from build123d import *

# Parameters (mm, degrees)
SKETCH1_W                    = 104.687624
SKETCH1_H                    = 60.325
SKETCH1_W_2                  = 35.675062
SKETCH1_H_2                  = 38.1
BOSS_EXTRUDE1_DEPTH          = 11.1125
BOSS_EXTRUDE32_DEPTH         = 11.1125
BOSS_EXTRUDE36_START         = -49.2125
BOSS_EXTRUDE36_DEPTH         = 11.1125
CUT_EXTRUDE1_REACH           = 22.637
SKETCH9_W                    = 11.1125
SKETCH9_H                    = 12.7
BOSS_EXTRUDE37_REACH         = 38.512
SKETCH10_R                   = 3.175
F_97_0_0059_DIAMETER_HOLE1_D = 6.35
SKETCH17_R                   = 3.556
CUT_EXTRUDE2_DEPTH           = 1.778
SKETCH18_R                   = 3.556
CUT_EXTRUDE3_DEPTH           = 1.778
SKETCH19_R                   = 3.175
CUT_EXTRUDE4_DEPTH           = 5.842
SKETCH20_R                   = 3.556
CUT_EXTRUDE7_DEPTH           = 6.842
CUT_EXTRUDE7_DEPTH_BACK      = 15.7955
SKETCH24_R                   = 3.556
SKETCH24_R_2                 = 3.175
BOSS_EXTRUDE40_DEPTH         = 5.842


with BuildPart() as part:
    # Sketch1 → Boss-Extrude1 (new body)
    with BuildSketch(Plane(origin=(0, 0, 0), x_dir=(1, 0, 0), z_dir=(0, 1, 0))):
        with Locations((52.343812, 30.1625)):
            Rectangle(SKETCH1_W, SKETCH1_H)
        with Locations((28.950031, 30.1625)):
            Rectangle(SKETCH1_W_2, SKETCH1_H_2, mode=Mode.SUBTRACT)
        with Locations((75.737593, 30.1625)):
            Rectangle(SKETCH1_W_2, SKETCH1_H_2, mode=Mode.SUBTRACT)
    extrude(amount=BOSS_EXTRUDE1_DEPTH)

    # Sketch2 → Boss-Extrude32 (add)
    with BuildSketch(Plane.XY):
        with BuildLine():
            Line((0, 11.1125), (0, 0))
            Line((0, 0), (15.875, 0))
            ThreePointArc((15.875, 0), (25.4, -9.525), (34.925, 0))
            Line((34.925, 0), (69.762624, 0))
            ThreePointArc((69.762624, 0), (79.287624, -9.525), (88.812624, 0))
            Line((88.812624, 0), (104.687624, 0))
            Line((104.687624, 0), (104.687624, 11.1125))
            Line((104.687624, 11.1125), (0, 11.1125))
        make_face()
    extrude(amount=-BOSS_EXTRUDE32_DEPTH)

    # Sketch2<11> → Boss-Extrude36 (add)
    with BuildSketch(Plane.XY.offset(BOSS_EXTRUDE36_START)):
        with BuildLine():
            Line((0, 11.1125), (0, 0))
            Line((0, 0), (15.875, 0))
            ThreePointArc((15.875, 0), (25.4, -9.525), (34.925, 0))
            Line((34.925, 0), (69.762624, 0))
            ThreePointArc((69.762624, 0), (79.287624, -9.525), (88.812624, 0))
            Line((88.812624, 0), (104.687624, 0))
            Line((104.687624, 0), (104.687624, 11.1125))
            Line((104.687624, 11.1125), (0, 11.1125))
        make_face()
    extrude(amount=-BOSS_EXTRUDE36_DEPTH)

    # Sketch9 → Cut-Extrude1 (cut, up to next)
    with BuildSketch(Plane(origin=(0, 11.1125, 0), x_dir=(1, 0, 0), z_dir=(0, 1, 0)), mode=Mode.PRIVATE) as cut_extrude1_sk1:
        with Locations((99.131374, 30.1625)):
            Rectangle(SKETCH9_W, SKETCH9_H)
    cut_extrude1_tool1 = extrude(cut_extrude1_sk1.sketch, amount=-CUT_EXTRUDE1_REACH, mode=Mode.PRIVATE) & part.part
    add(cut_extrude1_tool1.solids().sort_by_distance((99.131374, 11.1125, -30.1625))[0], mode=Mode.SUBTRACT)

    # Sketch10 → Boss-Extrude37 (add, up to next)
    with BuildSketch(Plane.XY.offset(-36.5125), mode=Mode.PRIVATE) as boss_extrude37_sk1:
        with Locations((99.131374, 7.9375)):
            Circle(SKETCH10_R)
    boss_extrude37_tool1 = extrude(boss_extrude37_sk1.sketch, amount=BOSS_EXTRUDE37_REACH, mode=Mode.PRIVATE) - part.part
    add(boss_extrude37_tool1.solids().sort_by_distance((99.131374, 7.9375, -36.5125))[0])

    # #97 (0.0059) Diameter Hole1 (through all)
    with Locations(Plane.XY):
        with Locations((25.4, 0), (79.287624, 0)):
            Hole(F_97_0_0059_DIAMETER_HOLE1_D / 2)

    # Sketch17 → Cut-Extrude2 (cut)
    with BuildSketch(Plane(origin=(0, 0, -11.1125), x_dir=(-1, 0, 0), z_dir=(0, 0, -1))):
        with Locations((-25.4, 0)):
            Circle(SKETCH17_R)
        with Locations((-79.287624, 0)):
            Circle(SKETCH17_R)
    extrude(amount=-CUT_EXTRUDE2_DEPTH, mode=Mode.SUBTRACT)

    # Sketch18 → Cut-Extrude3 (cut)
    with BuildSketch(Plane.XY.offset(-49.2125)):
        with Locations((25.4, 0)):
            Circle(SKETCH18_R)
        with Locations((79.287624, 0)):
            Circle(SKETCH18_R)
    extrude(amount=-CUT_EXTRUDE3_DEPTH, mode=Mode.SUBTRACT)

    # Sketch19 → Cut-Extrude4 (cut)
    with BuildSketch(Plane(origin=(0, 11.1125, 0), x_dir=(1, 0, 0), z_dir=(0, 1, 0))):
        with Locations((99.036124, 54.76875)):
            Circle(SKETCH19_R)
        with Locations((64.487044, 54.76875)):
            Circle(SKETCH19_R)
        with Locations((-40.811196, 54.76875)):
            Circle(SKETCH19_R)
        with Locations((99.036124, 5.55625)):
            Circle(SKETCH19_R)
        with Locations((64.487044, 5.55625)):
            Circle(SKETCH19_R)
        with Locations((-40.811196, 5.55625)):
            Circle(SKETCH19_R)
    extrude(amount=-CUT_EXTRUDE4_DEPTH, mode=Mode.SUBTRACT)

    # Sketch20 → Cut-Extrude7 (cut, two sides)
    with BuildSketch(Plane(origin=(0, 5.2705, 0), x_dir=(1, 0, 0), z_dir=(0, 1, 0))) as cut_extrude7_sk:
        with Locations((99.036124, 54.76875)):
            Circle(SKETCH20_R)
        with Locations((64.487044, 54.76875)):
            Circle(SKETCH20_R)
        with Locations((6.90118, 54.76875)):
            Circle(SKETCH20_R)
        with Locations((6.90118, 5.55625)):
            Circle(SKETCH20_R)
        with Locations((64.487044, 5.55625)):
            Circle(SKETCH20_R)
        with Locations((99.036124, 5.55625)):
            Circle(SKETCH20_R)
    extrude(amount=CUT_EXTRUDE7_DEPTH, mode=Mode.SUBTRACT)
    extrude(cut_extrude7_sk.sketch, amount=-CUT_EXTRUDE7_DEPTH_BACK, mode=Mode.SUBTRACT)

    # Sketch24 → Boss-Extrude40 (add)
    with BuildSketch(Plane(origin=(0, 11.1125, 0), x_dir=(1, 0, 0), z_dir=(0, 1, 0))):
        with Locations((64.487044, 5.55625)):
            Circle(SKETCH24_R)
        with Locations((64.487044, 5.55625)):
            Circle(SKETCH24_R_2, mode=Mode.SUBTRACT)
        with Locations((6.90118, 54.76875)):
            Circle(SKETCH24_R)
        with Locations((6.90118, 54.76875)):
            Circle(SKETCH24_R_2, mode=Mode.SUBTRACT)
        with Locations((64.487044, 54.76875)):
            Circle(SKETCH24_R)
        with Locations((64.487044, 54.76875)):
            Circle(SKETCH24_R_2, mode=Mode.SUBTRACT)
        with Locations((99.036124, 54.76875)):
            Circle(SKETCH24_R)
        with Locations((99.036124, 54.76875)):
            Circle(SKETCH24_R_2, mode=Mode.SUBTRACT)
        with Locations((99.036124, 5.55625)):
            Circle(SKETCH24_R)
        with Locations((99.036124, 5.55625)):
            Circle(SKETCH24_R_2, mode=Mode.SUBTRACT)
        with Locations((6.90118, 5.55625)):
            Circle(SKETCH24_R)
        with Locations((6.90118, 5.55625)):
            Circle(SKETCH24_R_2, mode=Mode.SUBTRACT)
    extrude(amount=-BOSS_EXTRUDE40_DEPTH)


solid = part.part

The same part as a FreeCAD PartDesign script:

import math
import FreeCAD as App
import Part
import Sketcher

V = App.Vector
Q = App.Units.Quantity


def add_polygon(sketch, points):
    """Adds a closed chain of lines whose ends are joined by coincident constraints."""
    first, n = sketch.GeometryCount, len(points)
    for a, b in zip(points, points[1:] + points[:1]):
        sketch.addGeometry(Part.LineSegment(App.Vector(*a, 0), App.Vector(*b, 0)), False)
    for i in range(n):
        sketch.addConstraint(Sketcher.Constraint("Coincident", first + i, 2, first + (i + 1) % n, 1))

doc = App.newDocument("Part")
body = doc.addObject("PartDesign::Body", "Body")

# Sketch on XZ plane
sketch1 = doc.addObject("Sketcher::SketchObject", "Sketch")
body.addObject(sketch1)
sketch1.AttachmentSupport = (doc.XZ_Plane, [""])
sketch1.MapMode = "FlatFace"
add_polygon(sketch1, [(0, -60), (0, 0), (105, 0), (105, -60)])  # lines 0-3
add_polygon(sketch1, [(47, -11), (11, -11), (11, -49), (47, -49)])  # lines 4-7
add_polygon(sketch1, [(94, -11), (58, -11), (58, -49), (94, -49)])  # lines 8-11
sketch1.addConstraint([
    Sketcher.Constraint("Vertical", 0),
    Sketcher.Constraint("Horizontal", 1),
    Sketcher.Constraint("Vertical", 2),
    Sketcher.Constraint("Horizontal", 3),
    Sketcher.Constraint("Horizontal", 4),
    Sketcher.Constraint("Vertical", 5),
    Sketcher.Constraint("Horizontal", 6),
    Sketcher.Constraint("Vertical", 7),
    Sketcher.Constraint("Horizontal", 8),
    Sketcher.Constraint("Vertical", 9),
    Sketcher.Constraint("Horizontal", 10),
    Sketcher.Constraint("Vertical", 11),
    Sketcher.Constraint("Coincident", 0, 2, -1, 1),
    Sketcher.Constraint("Horizontal", 7, 2, 8, 2),
    Sketcher.Constraint("Horizontal", 6, 2, 9, 2),
    Sketcher.Constraint("Equal", 6, 8),
    Sketcher.Constraint("DistanceY", 5, 2, 5, 1, Q("1.5 in")),
    Sketcher.Constraint("DistanceY", 0, 1, 0, 2, Q("2.375 in")),
    Sketcher.Constraint("DistanceX", -1, 1, 4, 2, Q("0.4375 in")),
    Sketcher.Constraint("DistanceY", 4, 2, -1, 1, Q("0.4375 in")),
    Sketcher.Constraint("DistanceX", 7, 2, 8, 2, Q("0.4375 in")),
    Sketcher.Constraint("DistanceX", 10, 2, 2, 2, Q("0.4375 in")),
    Sketcher.Constraint("DistanceX", 4, 2, 4, 1, 35.675062),
])
pad1 = doc.addObject("PartDesign::Pad", "Pad")
body.addObject(pad1)
pad1.Profile = sketch1
pad1.Length = Q("0.4375 in")
pad1.Reversed = True

# Sketch on XY plane
sketch2 = doc.addObject("Sketcher::SketchObject", "Sketch001")
body.addObject(sketch2)
sketch2.AttachmentSupport = (doc.XY_Plane, [""])
sketch2.MapMode = "FlatFace"
sketch2.addGeometry([
    Part.LineSegment(V(0, 11, 0), V(0, 0, 0)),  # 0
    Part.LineSegment(V(0, 0, 0), V(16, 0, 0)),  # 1
    Part.ArcOfCircle(Part.Circle(V(25, 0, 0), V(0, 0, 1), 10), math.radians(180), math.radians(360)),  # 2
    Part.LineSegment(V(35, 0, 0), V(70, 0, 0)),  # 3
    Part.ArcOfCircle(Part.Circle(V(79, 0, 0), V(0, 0, 1), 10), math.radians(180), math.radians(360)),  # 4
    Part.LineSegment(V(89, 0, 0), V(105, 0, 0)),  # 5
    Part.LineSegment(V(105, 0, 0), V(105, 11, 0)),  # 6
    Part.LineSegment(V(105, 11, 0), V(0, 11, 0)),  # 7
], False)
sketch2.addConstraint([
    Sketcher.Constraint("Coincident", 0, 2, 1, 1),
    Sketcher.Constraint("Coincident", 1, 2, 2, 1),
    Sketcher.Constraint("Coincident", 2, 2, 3, 1),
    Sketcher.Constraint("Coincident", 3, 2, 4, 1),
    Sketcher.Constraint("Coincident", 4, 2, 5, 1),
    Sketcher.Constraint("Coincident", 5, 2, 6, 1),
    Sketcher.Constraint("Coincident", 6, 2, 7, 1),
    Sketcher.Constraint("Coincident", 7, 2, 0, 1),
    Sketcher.Constraint("Vertical", 0),
    Sketcher.Constraint("Horizontal", 1),
    Sketcher.Constraint("Horizontal", 3),
    Sketcher.Constraint("Horizontal", 5),
    Sketcher.Constraint("Vertical", 6),
    Sketcher.Constraint("Horizontal", 7),
    Sketcher.Constraint("Coincident", 0, 2, -1, 1),
    Sketcher.Constraint("Equal", 2, 4),
    Sketcher.Constraint("PointOnObject", 2, 3, -1),
    Sketcher.Constraint("PointOnObject", 4, 3, -1),
    Sketcher.Constraint("PointOnObject", 2, 2, -1),
    Sketcher.Constraint("PointOnObject", 4, 2, -1),
    Sketcher.Constraint("Equal", 1, 5),
    Sketcher.Constraint("DistanceX", -1, 1, 2, 3, Q("1 in")),
    Sketcher.Constraint("Radius", 2, Q("0.375 in")),
    Sketcher.Constraint("DistanceY", 0, 2, 0, 1, Q("0.4375 in")),
    Sketcher.Constraint("DistanceX", 3, 1, 3, 2, 34.837624),
])
pad2 = doc.addObject("PartDesign::Pad", "Pad001")
body.addObject(pad2)
pad2.Profile = sketch2
pad2.Length = Q("0.4375 in")
pad2.Reversed = True

# Sketch on XY plane
sketch3 = doc.addObject("Sketcher::SketchObject", "Sketch002")
body.addObject(sketch3)
sketch3.AttachmentSupport = (doc.XY_Plane, [""])
sketch3.MapMode = "FlatFace"
sketch3.AttachmentOffset = App.Placement(V(0, 0, -1.9375 * 25.4), App.Rotation())
sketch3.addGeometry([
    Part.LineSegment(V(0, 11, 0), V(0, 0, 0)),  # 0
    Part.LineSegment(V(0, 0, 0), V(16, 0, 0)),  # 1
    Part.ArcOfCircle(Part.Circle(V(25, 0, 0), V(0, 0, 1), 10), math.radians(180), math.radians(360)),  # 2
    Part.LineSegment(V(35, 0, 0), V(70, 0, 0)),  # 3
    Part.ArcOfCircle(Part.Circle(V(79, 0, 0), V(0, 0, 1), 10), math.radians(180), math.radians(360)),  # 4
    Part.LineSegment(V(89, 0, 0), V(105, 0, 0)),  # 5
    Part.LineSegment(V(105, 0, 0), V(105, 11, 0)),  # 6
    Part.LineSegment(V(105, 11, 0), V(0, 11, 0)),  # 7
], False)
sketch3.addConstraint([
    Sketcher.Constraint("Coincident", 0, 2, 1, 1),
    Sketcher.Constraint("Coincident", 1, 2, 2, 1),
    Sketcher.Constraint("Coincident", 2, 2, 3, 1),
    Sketcher.Constraint("Coincident", 3, 2, 4, 1),
    Sketcher.Constraint("Coincident", 4, 2, 5, 1),
    Sketcher.Constraint("Coincident", 5, 2, 6, 1),
    Sketcher.Constraint("Coincident", 6, 2, 7, 1),
    Sketcher.Constraint("Coincident", 7, 2, 0, 1),
    Sketcher.Constraint("Vertical", 0),
    Sketcher.Constraint("Horizontal", 1),
    Sketcher.Constraint("Horizontal", 3),
    Sketcher.Constraint("Horizontal", 5),
    Sketcher.Constraint("Vertical", 6),
    Sketcher.Constraint("Horizontal", 7),
    Sketcher.Constraint("Coincident", 0, 2, -1, 1),
    Sketcher.Constraint("Equal", 2, 4),
    Sketcher.Constraint("PointOnObject", 2, 3, -1),
    Sketcher.Constraint("PointOnObject", 4, 3, -1),
    Sketcher.Constraint("PointOnObject", 2, 2, -1),
    Sketcher.Constraint("PointOnObject", 4, 2, -1),
    Sketcher.Constraint("Equal", 1, 5),
    Sketcher.Constraint("DistanceX", -1, 1, 2, 3, Q("1 in")),
    Sketcher.Constraint("Radius", 2, Q("0.375 in")),
    Sketcher.Constraint("DistanceY", 0, 2, 0, 1, Q("0.4375 in")),
    Sketcher.Constraint("DistanceX", 3, 1, 3, 2, 34.837624),
])
pad3 = doc.addObject("PartDesign::Pad", "Pad002")
body.addObject(pad3)
pad3.Profile = sketch3
pad3.Length = Q("0.4375 in")
pad3.Reversed = True

# Sketch on XZ plane
sketch4 = doc.addObject("Sketcher::SketchObject", "Sketch003")
body.addObject(sketch4)
sketch4.AttachmentSupport = (doc.XZ_Plane, [""])
sketch4.MapMode = "FlatFace"
sketch4.AttachmentOffset = App.Placement(V(0, 0, -0.4375 * 25.4), App.Rotation())
add_polygon(sketch4, [(94, -37), (94, -24), (105, -24), (105, -37)])  # lines 0-3
sketch4.addConstraint([
    Sketcher.Constraint("Vertical", 0),
    Sketcher.Constraint("Horizontal", 1),
    Sketcher.Constraint("Vertical", 2),
    Sketcher.Constraint("Horizontal", 3),
    Sketcher.Constraint("DistanceY", 0, 1, 0, 2, Q("0.5 in")),
    Sketcher.Constraint("DistanceX", 1, 1, 1, 2, Q("0.4375 in")),
    Sketcher.Constraint("DistanceY", 0, 2, -1, 1, Q("0.9375 in")),
    Sketcher.Constraint("DistanceX", -1, 1, 0, 2, 93.575124),
])
pocket1 = doc.addObject("PartDesign::Pocket", "Pocket")
body.addObject(pocket1)
pocket1.Profile = sketch4
pocket1.Type = "UpToFirst"
pocket1.Reversed = True

# Sketch on XY plane
sketch5 = doc.addObject("Sketcher::SketchObject", "Sketch004")
body.addObject(sketch5)
sketch5.AttachmentSupport = (doc.XY_Plane, [""])
sketch5.MapMode = "FlatFace"
sketch5.AttachmentOffset = App.Placement(V(0, 0, -1.4375 * 25.4), App.Rotation())
sketch5.addGeometry(Part.Circle(V(99.1, 7.9, 0), V(0, 0, 1), 3.2), False)
sketch5.addConstraint([
    Sketcher.Constraint("Diameter", 0, Q("0.25 in")),
    Sketcher.Constraint("DistanceY", -1, 1, 0, 3, Q("0.3125 in")),
    Sketcher.Constraint("DistanceX", -1, 1, 0, 3, 99.131374),
])
pad4 = doc.addObject("PartDesign::Pad", "Pad003")
body.addObject(pad4)
pad4.Profile = sketch5
pad4.Type = "UpToFirst"

# Sketch on XY plane
sketch6 = doc.addObject("Sketcher::SketchObject", "Sketch005")
body.addObject(sketch6)
sketch6.AttachmentSupport = (doc.XY_Plane, [""])
sketch6.MapMode = "FlatFace"
sketch6.addGeometry([
    Part.Circle(V(25.4, 0, 0), V(0, 0, 1), 3.2),
    Part.Circle(V(79.3, 0, 0), V(0, 0, 1), 3.2),
], False)
sketch6.addConstraint([
    Sketcher.Constraint("Equal", 0, 1),
    Sketcher.Constraint("PointOnObject", 0, 3, -1),
    Sketcher.Constraint("PointOnObject", 1, 3, -1),
    Sketcher.Constraint("Diameter", 0, Q("0.25 in")),
    Sketcher.Constraint("DistanceX", -1, 1, 0, 3, Q("1 in")),
    Sketcher.Constraint("DistanceX", -1, 1, 1, 3, 79.287624),
])
doc.recompute()
hole = doc.addObject("PartDesign::Hole", "Hole")
body.addObject(hole)
hole.Profile = sketch6
hole.ThreadType = "None"
hole.Diameter = Q("0.25 in")
hole.DepthType = "ThroughAll"

# Sketch on XY plane
sketch7 = doc.addObject("Sketcher::SketchObject", "Sketch006")
body.addObject(sketch7)
sketch7.AttachmentSupport = (doc.XY_Plane, [""])
sketch7.MapMode = "FlatFace"
sketch7.AttachmentOffset = App.Placement(V(0, 0, -0.4375 * 25.4), App.Rotation())
sketch7.addGeometry([
    Part.Circle(V(25.4, 0, 0), V(0, 0, 1), 3.6),
    Part.Circle(V(79.3, 0, 0), V(0, 0, 1), 3.6),
], False)
sketch7.addConstraint([
    Sketcher.Constraint("Equal", 0, 1),
    Sketcher.Constraint("PointOnObject", 0, 3, -1),
    Sketcher.Constraint("PointOnObject", 1, 3, -1),
    Sketcher.Constraint("Diameter", 0, Q("0.28 in")),
    Sketcher.Constraint("DistanceX", -1, 1, 0, 3, Q("1 in")),
    Sketcher.Constraint("DistanceX", -1, 1, 1, 3, 79.287624),
])
pocket2 = doc.addObject("PartDesign::Pocket", "Pocket001")
body.addObject(pocket2)
pocket2.Profile = sketch7
pocket2.Length = Q("0.07 in")
pocket2.Reversed = True

# Sketch on XY plane
sketch8 = doc.addObject("Sketcher::SketchObject", "Sketch007")
body.addObject(sketch8)
sketch8.AttachmentSupport = (doc.XY_Plane, [""])
sketch8.MapMode = "FlatFace"
sketch8.AttachmentOffset = App.Placement(V(0, 0, -1.9375 * 25.4), App.Rotation())
sketch8.addGeometry([
    Part.Circle(V(25.4, 0, 0), V(0, 0, 1), 3.6),
    Part.Circle(V(79.3, 0, 0), V(0, 0, 1), 3.6),
], False)
sketch8.addConstraint([
    Sketcher.Constraint("Equal", 0, 1),
    Sketcher.Constraint("PointOnObject", 0, 3, -1),
    Sketcher.Constraint("PointOnObject", 1, 3, -1),
    Sketcher.Constraint("Diameter", 0, Q("0.28 in")),
    Sketcher.Constraint("DistanceX", -1, 1, 0, 3, Q("1 in")),
    Sketcher.Constraint("DistanceX", -1, 1, 1, 3, 79.287624),
])
pocket3 = doc.addObject("PartDesign::Pocket", "Pocket002")
body.addObject(pocket3)
pocket3.Profile = sketch8
pocket3.Length = Q("0.07 in")

# Sketch on XZ plane
sketch9 = doc.addObject("Sketcher::SketchObject", "Sketch008")
body.addObject(sketch9)
sketch9.AttachmentSupport = (doc.XZ_Plane, [""])
sketch9.MapMode = "FlatFace"
sketch9.AttachmentOffset = App.Placement(V(0, 0, -0.4375 * 25.4), App.Rotation())
sketch9.addGeometry([
    Part.Circle(V(99, -54.8, 0), V(0, 0, 1), 3.2),  # 0
    Part.Circle(V(64.5, -54.8, 0), V(0, 0, 1), 3.2),  # 1
    Part.Circle(V(-40.8, -54.8, 0), V(0, 0, 1), 3.2),  # 2
    Part.Circle(V(99, -5.6, 0), V(0, 0, 1), 3.2),  # 3
    Part.Circle(V(64.5, -5.6, 0), V(0, 0, 1), 3.2),  # 4
    Part.Circle(V(-40.8, -5.6, 0), V(0, 0, 1), 3.2),  # 5
], False)
sketch9.addConstraint([
    Sketcher.Constraint("Equal", 0, 1),
    Sketcher.Constraint("Equal", 1, 2),
    Sketcher.Constraint("Equal", 2, 3),
    Sketcher.Constraint("Equal", 3, 4),
    Sketcher.Constraint("Equal", 4, 5),
    Sketcher.Constraint("Horizontal", 0, 3, 1, 3),
    Sketcher.Constraint("Horizontal", 1, 3, 2, 3),
    Sketcher.Constraint("Horizontal", 3, 3, 4, 3),
    Sketcher.Constraint("Horizontal", 4, 3, 5, 3),
    Sketcher.Constraint("Vertical", 0, 3, 3, 3),
    Sketcher.Constraint("Vertical", 1, 3, 4, 3),
    Sketcher.Constraint("Vertical", 2, 3, 5, 3),
    Sketcher.Constraint("Diameter", 0, Q("0.25 in")),
    Sketcher.Constraint("DistanceY", 0, 3, -1, 1, Q("2.15625 in")),
    Sketcher.Constraint("DistanceY", 3, 3, -1, 1, Q("0.21875 in")),
    Sketcher.Constraint("DistanceX", 1, 3, 0, 3, Q("1.3602 in")),
    Sketcher.Constraint("DistanceX", 2, 3, 1, 3, Q("4.1456 in")),
    Sketcher.Constraint("DistanceX", -1, 1, 0, 3, 99.036124),
])
pocket4 = doc.addObject("PartDesign::Pocket", "Pocket003")
body.addObject(pocket4)
pocket4.Profile = sketch9
pocket4.Length = Q("0.23 in")
pocket4.Reversed = True

# Sketch on XZ plane
sketch10 = doc.addObject("Sketcher::SketchObject", "Sketch009")
body.addObject(sketch10)
sketch10.AttachmentSupport = (doc.XZ_Plane, [""])
sketch10.MapMode = "FlatFace"
sketch10.AttachmentOffset = App.Placement(V(0, 0, -0.2075 * 25.4), App.Rotation())
sketch10.addGeometry([
    Part.Circle(V(99, -54.8, 0), V(0, 0, 1), 3.6),  # 0
    Part.Circle(V(64.5, -54.8, 0), V(0, 0, 1), 3.6),  # 1
    Part.Circle(V(6.9, -54.8, 0), V(0, 0, 1), 3.6),  # 2
    Part.Circle(V(6.9, -5.6, 0), V(0, 0, 1), 3.6),  # 3
    Part.Circle(V(64.5, -5.6, 0), V(0, 0, 1), 3.6),  # 4
    Part.Circle(V(99, -5.6, 0), V(0, 0, 1), 3.6),  # 5
], False)
sketch10.addConstraint([
    Sketcher.Constraint("Equal", 0, 1),
    Sketcher.Constraint("Equal", 1, 2),
    Sketcher.Constraint("Equal", 2, 3),
    Sketcher.Constraint("Equal", 3, 4),
    Sketcher.Constraint("Equal", 4, 5),
    Sketcher.Constraint("Horizontal", 0, 3, 1, 3),
    Sketcher.Constraint("Horizontal", 1, 3, 2, 3),
    Sketcher.Constraint("Horizontal", 3, 3, 4, 3),
    Sketcher.Constraint("Horizontal", 4, 3, 5, 3),
    Sketcher.Constraint("Vertical", 2, 3, 3, 3),
    Sketcher.Constraint("Vertical", 1, 3, 4, 3),
    Sketcher.Constraint("Vertical", 0, 3, 5, 3),
    Sketcher.Constraint("Diameter", 0, Q("0.28 in")),
    Sketcher.Constraint("DistanceY", 0, 3, -1, 1, Q("2.15625 in")),
    Sketcher.Constraint("DistanceY", 3, 3, -1, 1, Q("0.21875 in")),
    Sketcher.Constraint("DistanceX", -1, 1, 2, 3, Q("0.2717 in")),
    Sketcher.Constraint("DistanceX", 1, 3, 0, 3, Q("1.3602 in")),
    Sketcher.Constraint("DistanceX", -1, 1, 0, 3, 99.036124),
])
pocket5 = doc.addObject("PartDesign::Pocket", "Pocket004")
body.addObject(pocket5)
pocket5.Profile = sketch10
pocket5.Type = "ThroughAll"
pocket5.Midplane = True

# Sketch on XZ plane
sketch11 = doc.addObject("Sketcher::SketchObject", "Sketch010")
body.addObject(sketch11)
sketch11.AttachmentSupport = (doc.XZ_Plane, [""])
sketch11.MapMode = "FlatFace"
sketch11.AttachmentOffset = App.Placement(V(0, 0, -0.4375 * 25.4), App.Rotation())
sketch11.addGeometry([
    Part.Circle(V(64.5, -5.6, 0), V(0, 0, 1), 3.6),  # 0
    Part.Circle(V(64.5, -5.6, 0), V(0, 0, 1), 3.2),  # 1
    Part.Circle(V(6.9, -54.8, 0), V(0, 0, 1), 3.6),  # 2
    Part.Circle(V(6.9, -54.8, 0), V(0, 0, 1), 3.2),  # 3
    Part.Circle(V(64.5, -54.8, 0), V(0, 0, 1), 3.6),  # 4
    Part.Circle(V(64.5, -54.8, 0), V(0, 0, 1), 3.2),  # 5
    Part.Circle(V(99, -54.8, 0), V(0, 0, 1), 3.6),  # 6
    Part.Circle(V(99, -54.8, 0), V(0, 0, 1), 3.2),  # 7
    Part.Circle(V(99, -5.6, 0), V(0, 0, 1), 3.6),  # 8
    Part.Circle(V(99, -5.6, 0), V(0, 0, 1), 3.2),  # 9
    Part.Circle(V(6.9, -5.6, 0), V(0, 0, 1), 3.6),  # 10
    Part.Circle(V(6.9, -5.6, 0), V(0, 0, 1), 3.2),  # 11
], False)
sketch11.addConstraint([
    Sketcher.Constraint("Coincident", 1, 3, 0, 3),
    Sketcher.Constraint("Coincident", 3, 3, 2, 3),
    Sketcher.Constraint("Coincident", 5, 3, 4, 3),
    Sketcher.Constraint("Coincident", 7, 3, 6, 3),
    Sketcher.Constraint("Coincident", 9, 3, 8, 3),
    Sketcher.Constraint("Coincident", 11, 3, 10, 3),
    Sketcher.Constraint("Equal", 0, 2),
    Sketcher.Constraint("Equal", 1, 3),
    Sketcher.Constraint("Equal", 2, 4),
    Sketcher.Constraint("Equal", 3, 5),
    Sketcher.Constraint("Equal", 4, 6),
    Sketcher.Constraint("Equal", 5, 7),
    Sketcher.Constraint("Equal", 6, 8),
    Sketcher.Constraint("Equal", 7, 9),
    Sketcher.Constraint("Equal", 8, 10),
    Sketcher.Constraint("Equal", 9, 11),
    Sketcher.Constraint("Horizontal", 3, 3, 4, 3),
    Sketcher.Constraint("Horizontal", 5, 3, 6, 3),
    Sketcher.Constraint("Horizontal", 1, 3, 8, 3),
    Sketcher.Constraint("Horizontal", 9, 3, 10, 3),
    Sketcher.Constraint("Vertical", 1, 3, 4, 3),
    Sketcher.Constraint("Vertical", 7, 3, 8, 3),
    Sketcher.Constraint("Vertical", 3, 3, 10, 3),
    Sketcher.Constraint("Diameter", 0, Q("0.28 in")),
    Sketcher.Constraint("Diameter", 1, Q("0.25 in")),
    Sketcher.Constraint("DistanceY", 0, 3, -1, 1, Q("0.21875 in")),
    Sketcher.Constraint("DistanceY", 2, 3, -1, 1, Q("2.15625 in")),
    Sketcher.Constraint("DistanceX", -1, 1, 2, 3, Q("0.2717 in")),
    Sketcher.Constraint("DistanceX", 4, 3, 6, 3, Q("1.3602 in")),
    Sketcher.Constraint("DistanceX", -1, 1, 0, 3, 64.487044),
])
pad5 = doc.addObject("PartDesign::Pad", "Pad004")
body.addObject(pad5)
pad5.Profile = sketch11
pad5.Length = Q("0.23 in")

doc.recompute()
